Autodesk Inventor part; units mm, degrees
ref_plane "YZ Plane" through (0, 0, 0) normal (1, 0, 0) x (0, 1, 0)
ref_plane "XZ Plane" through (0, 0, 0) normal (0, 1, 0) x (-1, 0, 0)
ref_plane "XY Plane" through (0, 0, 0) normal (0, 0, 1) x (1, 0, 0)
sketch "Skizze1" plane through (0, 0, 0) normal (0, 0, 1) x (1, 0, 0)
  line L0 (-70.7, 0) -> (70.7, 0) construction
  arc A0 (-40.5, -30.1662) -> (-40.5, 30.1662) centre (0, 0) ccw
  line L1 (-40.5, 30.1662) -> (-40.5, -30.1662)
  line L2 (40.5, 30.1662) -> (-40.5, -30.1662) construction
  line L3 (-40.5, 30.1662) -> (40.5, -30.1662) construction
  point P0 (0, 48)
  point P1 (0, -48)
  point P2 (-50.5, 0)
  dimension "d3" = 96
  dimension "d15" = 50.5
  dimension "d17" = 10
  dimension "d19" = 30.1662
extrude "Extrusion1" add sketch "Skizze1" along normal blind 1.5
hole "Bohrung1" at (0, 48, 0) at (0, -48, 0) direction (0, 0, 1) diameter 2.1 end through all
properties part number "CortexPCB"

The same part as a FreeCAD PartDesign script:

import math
import FreeCAD as App
import Part
import Sketcher

V = App.Vector
Q = App.Units.Quantity

doc = App.newDocument("Part")
body = doc.addObject("PartDesign::Body", "Body")

sketch1 = body.newObject("Sketcher::SketchObject", "Sketch")
sketch1.AttachmentSupport = (doc.getObject("XY_Plane"), [""])
sketch1.MapMode = "FlatFace"
sketch1.addGeometry([
    Part.LineSegment(V(-40, 30, 0), V(-40, -30, 0)),
    Part.ArcOfCircle(Part.Circle(V(0, 0, 0), V(0, 0, 1), 50), math.radians(-143), math.radians(143)),
], False)
sketch1.addConstraint([
    Sketcher.Constraint("Coincident", 0, 1, 1, 2),
    Sketcher.Constraint("Coincident", 1, 1, 0, 2),
    Sketcher.Constraint("Vertical", 0),
    Sketcher.Constraint("Coincident", 1, 3, -1, 1),
    Sketcher.Constraint("Radius", 1, Q("50.5 mm")),
    Sketcher.Constraint("DistanceY", -1, 1, 0, 1, Q("30.1662 mm")),
])
pad1 = body.newObject("PartDesign::Pad", "Pad")
pad1.Profile = sketch1
pad1.Length = 1.5

sketch2 = body.newObject("Sketcher::SketchObject", "Sketch001")
sketch2.AttachmentSupport = (doc.getObject("XY_Plane"), [""])
sketch2.MapMode = "FlatFace"
sketch2.addGeometry([
    Part.Circle(V(0, 48, 0), V(0, 0, 1), 1.1),
    Part.Circle(V(0, -48, 0), V(0, 0, 1), 1.1),
], False)
sketch2.addConstraint([
    Sketcher.Constraint("Equal", 0, 1),
    Sketcher.Constraint("Symmetric", 0, 3, 1, 3, -1, 1),
    Sketcher.Constraint("PointOnObject", 0, 3, -2),
    Sketcher.Constraint("Diameter", 0, Q("2.1 mm")),
    Sketcher.Constraint("DistanceY", -1, 1, 0, 3, Q("48 mm")),
])
doc.recompute()
hole = body.newObject("PartDesign::Hole", "Hole")
hole.Profile = sketch2
hole.ThreadType = "None"
hole.Diameter = 2.1
hole.DepthType = "ThroughAll"
hole.Reversed = True

doc.recompute()
